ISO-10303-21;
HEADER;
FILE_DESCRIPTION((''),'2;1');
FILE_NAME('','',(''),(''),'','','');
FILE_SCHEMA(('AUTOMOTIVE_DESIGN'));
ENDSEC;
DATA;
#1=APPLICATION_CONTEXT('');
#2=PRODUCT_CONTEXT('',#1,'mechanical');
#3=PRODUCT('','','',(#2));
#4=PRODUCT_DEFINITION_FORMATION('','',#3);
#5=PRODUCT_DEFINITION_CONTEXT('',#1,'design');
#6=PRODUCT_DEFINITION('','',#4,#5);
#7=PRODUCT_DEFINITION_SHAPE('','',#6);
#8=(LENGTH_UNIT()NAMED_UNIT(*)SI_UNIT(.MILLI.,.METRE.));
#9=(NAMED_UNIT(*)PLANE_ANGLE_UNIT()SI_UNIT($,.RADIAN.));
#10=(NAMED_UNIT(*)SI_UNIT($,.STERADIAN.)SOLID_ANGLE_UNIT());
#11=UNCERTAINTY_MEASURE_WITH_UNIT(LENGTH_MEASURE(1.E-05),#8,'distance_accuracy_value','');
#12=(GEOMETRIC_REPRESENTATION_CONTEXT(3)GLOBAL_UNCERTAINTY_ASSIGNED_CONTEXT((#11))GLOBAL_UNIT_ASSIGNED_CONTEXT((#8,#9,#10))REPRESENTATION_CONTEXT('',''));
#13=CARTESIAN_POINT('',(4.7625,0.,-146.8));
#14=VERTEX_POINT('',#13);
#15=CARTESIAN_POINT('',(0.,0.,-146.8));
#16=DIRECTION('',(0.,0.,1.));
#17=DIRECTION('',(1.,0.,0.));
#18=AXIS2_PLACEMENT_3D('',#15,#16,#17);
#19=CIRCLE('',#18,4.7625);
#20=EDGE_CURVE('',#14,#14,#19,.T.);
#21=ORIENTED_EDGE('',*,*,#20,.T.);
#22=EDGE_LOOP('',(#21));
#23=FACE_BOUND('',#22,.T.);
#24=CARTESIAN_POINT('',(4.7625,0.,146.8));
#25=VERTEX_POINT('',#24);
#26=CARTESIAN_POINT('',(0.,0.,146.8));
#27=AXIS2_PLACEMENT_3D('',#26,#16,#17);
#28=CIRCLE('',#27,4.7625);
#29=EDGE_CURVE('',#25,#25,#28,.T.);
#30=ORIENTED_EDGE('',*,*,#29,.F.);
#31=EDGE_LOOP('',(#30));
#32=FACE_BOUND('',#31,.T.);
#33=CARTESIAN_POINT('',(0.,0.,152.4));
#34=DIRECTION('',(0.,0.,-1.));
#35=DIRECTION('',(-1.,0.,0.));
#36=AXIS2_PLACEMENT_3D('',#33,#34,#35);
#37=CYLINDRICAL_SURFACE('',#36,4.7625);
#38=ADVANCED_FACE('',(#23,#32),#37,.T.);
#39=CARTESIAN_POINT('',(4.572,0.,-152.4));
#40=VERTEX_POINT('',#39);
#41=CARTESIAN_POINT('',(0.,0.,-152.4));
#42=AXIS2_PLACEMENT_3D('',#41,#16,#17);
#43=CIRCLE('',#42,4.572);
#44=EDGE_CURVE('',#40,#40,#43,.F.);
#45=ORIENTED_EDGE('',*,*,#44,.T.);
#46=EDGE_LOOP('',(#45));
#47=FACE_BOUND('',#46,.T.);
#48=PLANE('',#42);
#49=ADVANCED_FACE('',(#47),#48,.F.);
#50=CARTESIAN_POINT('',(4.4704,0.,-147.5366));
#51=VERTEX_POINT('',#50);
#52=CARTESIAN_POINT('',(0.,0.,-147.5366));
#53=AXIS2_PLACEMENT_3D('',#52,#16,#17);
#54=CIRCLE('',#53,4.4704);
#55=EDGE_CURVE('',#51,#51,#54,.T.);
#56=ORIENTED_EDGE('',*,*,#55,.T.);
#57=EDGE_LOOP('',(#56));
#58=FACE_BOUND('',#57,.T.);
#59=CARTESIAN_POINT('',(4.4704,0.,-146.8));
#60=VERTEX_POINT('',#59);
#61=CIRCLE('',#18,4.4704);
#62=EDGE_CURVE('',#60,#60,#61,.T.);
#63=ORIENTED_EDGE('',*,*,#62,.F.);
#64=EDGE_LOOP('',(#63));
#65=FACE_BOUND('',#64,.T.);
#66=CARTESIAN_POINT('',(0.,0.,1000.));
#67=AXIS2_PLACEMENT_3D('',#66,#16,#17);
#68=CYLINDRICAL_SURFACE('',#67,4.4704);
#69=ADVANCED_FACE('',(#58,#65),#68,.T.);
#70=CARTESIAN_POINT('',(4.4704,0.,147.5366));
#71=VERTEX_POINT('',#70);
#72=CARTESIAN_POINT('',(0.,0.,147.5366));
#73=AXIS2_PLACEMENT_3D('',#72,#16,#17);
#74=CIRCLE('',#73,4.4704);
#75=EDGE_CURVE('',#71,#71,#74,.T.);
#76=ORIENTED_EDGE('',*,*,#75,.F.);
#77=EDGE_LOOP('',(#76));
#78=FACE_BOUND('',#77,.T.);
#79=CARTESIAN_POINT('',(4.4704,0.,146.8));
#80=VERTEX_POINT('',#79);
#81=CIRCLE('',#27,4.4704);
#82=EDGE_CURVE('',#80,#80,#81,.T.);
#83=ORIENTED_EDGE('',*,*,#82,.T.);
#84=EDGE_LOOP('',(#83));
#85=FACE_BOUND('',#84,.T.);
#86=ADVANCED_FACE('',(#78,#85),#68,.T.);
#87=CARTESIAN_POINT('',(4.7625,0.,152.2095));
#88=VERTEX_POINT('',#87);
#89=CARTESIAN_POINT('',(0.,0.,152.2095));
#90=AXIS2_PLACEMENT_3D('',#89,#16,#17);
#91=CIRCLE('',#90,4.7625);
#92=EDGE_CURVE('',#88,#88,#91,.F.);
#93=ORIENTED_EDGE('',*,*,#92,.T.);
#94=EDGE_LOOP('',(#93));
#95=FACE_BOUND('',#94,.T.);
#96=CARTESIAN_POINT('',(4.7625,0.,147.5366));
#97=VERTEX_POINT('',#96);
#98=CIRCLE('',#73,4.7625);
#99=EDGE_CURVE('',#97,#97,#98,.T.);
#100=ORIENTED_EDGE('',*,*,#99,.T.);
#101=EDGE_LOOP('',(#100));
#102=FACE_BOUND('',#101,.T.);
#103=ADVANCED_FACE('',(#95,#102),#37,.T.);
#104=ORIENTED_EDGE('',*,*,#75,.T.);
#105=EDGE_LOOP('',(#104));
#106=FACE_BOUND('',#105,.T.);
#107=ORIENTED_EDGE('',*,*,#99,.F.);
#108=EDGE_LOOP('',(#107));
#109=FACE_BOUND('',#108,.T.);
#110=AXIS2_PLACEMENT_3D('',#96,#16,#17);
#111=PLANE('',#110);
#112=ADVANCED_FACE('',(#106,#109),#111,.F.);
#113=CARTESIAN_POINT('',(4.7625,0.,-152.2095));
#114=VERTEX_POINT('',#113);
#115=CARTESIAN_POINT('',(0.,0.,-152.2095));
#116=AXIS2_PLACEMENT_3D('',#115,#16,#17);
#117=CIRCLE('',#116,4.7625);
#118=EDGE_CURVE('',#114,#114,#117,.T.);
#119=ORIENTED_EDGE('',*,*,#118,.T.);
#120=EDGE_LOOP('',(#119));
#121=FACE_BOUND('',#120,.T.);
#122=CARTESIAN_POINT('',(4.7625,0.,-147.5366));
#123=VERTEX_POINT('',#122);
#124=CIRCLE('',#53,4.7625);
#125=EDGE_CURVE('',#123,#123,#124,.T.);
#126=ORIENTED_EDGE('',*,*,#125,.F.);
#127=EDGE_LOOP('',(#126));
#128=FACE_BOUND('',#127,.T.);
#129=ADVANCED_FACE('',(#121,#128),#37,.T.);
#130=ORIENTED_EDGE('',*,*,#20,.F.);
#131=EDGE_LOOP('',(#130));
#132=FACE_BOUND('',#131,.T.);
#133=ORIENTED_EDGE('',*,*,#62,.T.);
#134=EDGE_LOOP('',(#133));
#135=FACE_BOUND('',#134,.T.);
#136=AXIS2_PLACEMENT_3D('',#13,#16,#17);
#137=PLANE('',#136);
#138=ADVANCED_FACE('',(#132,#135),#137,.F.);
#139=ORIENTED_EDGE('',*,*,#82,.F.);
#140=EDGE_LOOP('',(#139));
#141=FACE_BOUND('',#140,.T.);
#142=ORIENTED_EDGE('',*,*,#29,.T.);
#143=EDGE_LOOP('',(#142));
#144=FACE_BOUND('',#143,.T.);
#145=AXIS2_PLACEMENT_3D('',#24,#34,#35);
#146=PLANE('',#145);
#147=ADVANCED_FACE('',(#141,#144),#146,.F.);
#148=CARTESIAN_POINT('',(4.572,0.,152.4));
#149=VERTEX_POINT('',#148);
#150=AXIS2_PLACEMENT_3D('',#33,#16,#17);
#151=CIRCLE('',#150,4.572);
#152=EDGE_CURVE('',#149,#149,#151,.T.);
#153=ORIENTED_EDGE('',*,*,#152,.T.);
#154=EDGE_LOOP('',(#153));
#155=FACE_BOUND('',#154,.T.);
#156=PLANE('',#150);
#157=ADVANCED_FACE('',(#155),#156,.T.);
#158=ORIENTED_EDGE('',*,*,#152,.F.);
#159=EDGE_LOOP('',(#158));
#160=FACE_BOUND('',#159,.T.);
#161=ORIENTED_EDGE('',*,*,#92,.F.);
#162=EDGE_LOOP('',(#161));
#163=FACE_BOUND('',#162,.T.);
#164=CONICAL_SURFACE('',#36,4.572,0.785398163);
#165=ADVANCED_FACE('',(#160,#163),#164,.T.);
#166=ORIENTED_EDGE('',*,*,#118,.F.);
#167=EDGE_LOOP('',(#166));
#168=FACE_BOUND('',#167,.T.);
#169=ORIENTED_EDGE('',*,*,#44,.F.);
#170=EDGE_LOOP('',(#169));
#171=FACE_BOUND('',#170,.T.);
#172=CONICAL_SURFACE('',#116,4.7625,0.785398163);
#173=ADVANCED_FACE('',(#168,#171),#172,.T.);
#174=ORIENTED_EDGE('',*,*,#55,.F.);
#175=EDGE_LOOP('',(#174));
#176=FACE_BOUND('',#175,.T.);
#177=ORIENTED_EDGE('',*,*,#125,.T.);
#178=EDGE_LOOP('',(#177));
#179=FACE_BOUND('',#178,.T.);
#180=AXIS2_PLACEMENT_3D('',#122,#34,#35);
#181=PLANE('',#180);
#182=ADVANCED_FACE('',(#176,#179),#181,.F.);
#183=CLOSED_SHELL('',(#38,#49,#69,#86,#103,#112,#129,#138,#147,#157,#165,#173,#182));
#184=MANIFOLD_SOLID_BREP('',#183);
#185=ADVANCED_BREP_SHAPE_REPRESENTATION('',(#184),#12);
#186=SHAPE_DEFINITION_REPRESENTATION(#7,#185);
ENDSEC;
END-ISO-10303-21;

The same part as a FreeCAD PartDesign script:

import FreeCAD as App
import Part
import Sketcher

V = App.Vector
Q = App.Units.Quantity


def edges_at(feature, points):
    """Names of the edges that pass closest to the given points."""
    edges = feature.Shape.Edges
    near = lambda p: min(range(len(edges)), key=lambda i: edges[i].distToShape(Part.Vertex(*p))[0])
    return sorted({f"Edge{near(p) + 1}" for p in points})

doc = App.newDocument("Part")
body = doc.addObject("PartDesign::Body", "Body")

sketch1 = body.newObject("Sketcher::SketchObject", "Sketch")
sketch1.AttachmentSupport = (doc.getObject("XY_Plane"), [""])
sketch1.MapMode = "FlatFace"
sketch1.addGeometry(Part.Circle(V(0, 0, 0), V(0, 0, 1), 4.8), False)
sketch1.addConstraint(Sketcher.Constraint("Coincident", 0, 3, -1, 1))
sketch1.addConstraint(Sketcher.Constraint("Diameter", 0, Q("0.375 in")))
pad1 = body.newObject("PartDesign::Pad", "Pad")
pad1.Profile = sketch1
pad1.Type = "TwoLengths"
pad1.Length = Q("6 in")
pad1.Length2 = Q("6 in")
doc.recompute()

chamfer = body.newObject("PartDesign::Chamfer", "Chamfer")
chamfer.Base = (pad1, edges_at(pad1, [(-4.763, 0, -152.4), (-4.763, 0, 152.4)]))
chamfer.Size = Q("0.0075 in")

sketch2 = body.newObject("Sketcher::SketchObject", "Sketch001")
sketch2.AttachmentSupport = (doc.getObject("XZ_Plane"), [""])
sketch2.MapMode = "FlatFace"
sketch2.addGeometry(Part.LineSegment(V(4.47, -147.54, 0), V(4.47, -146.8, 0)), False)
sketch2.addGeometry(Part.LineSegment(V(4.47, -146.8, 0), V(4.76, -146.8, 0)), False)
sketch2.addGeometry(Part.LineSegment(V(4.76, -146.8, 0), V(4.76, -147.54, 0)), False)
sketch2.addGeometry(Part.LineSegment(V(4.76, -147.54, 0), V(4.47, -147.54, 0)), False)
sketch2.addGeometry(Part.LineSegment(V(4.47, 146.8, 0), V(4.47, 147.54, 0)), False)
sketch2.addGeometry(Part.LineSegment(V(4.47, 147.54, 0), V(4.76, 147.54, 0)), False)
sketch2.addGeometry(Part.LineSegment(V(4.76, 147.54, 0), V(4.76, 146.8, 0)), False)
sketch2.addGeometry(Part.LineSegment(V(4.76, 146.8, 0), V(4.47, 146.8, 0)), False)
sketch2.addConstraint(Sketcher.Constraint("Coincident", 0, 2, 1, 1))
sketch2.addConstraint(Sketcher.Constraint("Coincident", 1, 2, 2, 1))
sketch2.addConstraint(Sketcher.Constraint("Coincident", 2, 2, 3, 1))
sketch2.addConstraint(Sketcher.Constraint("Coincident", 3, 2, 0, 1))
sketch2.addConstraint(Sketcher.Constraint("Coincident", 4, 2, 5, 1))
sketch2.addConstraint(Sketcher.Constraint("Coincident", 5, 2, 6, 1))
sketch2.addConstraint(Sketcher.Constraint("Coincident", 6, 2, 7, 1))
sketch2.addConstraint(Sketcher.Constraint("Coincident", 7, 2, 4, 1))
sketch2.addConstraint(Sketcher.Constraint("Vertical", 0))
sketch2.addConstraint(Sketcher.Constraint("Horizontal", 1))
sketch2.addConstraint(Sketcher.Constraint("Vertical", 2))
sketch2.addConstraint(Sketcher.Constraint("Horizontal", 3))
sketch2.addConstraint(Sketcher.Constraint("Vertical", 4))
sketch2.addConstraint(Sketcher.Constraint("Horizontal", 5))
sketch2.addConstraint(Sketcher.Constraint("Vertical", 6))
sketch2.addConstraint(Sketcher.Constraint("Horizontal", 7))
sketch2.addConstraint(Sketcher.Constraint("Symmetric", 3, 2, 4, 2, -1))
sketch2.addConstraint(Sketcher.Constraint("Symmetric", 1, 2, 6, 2, -1))
sketch2.addConstraint(Sketcher.Constraint("DistanceY", 0, 1, 0, 2, Q("0.029 in")))
sketch2.addConstraint(Sketcher.Constraint("DistanceX", 1, 1, 1, 2, Q("0.0115 in")))
sketch2.addConstraint(Sketcher.Constraint("DistanceX", -1, 1, 0, 2, Q("0.176 in")))
sketch2.addConstraint(Sketcher.Constraint("DistanceY", 0, 2, -1, 1, 146.8))
groove = body.newObject("PartDesign::Groove", "Groove")
groove.Profile = sketch2
groove.ReferenceAxis = (sketch2, ["V_Axis"])
groove.Angle = 360

doc.recompute()
